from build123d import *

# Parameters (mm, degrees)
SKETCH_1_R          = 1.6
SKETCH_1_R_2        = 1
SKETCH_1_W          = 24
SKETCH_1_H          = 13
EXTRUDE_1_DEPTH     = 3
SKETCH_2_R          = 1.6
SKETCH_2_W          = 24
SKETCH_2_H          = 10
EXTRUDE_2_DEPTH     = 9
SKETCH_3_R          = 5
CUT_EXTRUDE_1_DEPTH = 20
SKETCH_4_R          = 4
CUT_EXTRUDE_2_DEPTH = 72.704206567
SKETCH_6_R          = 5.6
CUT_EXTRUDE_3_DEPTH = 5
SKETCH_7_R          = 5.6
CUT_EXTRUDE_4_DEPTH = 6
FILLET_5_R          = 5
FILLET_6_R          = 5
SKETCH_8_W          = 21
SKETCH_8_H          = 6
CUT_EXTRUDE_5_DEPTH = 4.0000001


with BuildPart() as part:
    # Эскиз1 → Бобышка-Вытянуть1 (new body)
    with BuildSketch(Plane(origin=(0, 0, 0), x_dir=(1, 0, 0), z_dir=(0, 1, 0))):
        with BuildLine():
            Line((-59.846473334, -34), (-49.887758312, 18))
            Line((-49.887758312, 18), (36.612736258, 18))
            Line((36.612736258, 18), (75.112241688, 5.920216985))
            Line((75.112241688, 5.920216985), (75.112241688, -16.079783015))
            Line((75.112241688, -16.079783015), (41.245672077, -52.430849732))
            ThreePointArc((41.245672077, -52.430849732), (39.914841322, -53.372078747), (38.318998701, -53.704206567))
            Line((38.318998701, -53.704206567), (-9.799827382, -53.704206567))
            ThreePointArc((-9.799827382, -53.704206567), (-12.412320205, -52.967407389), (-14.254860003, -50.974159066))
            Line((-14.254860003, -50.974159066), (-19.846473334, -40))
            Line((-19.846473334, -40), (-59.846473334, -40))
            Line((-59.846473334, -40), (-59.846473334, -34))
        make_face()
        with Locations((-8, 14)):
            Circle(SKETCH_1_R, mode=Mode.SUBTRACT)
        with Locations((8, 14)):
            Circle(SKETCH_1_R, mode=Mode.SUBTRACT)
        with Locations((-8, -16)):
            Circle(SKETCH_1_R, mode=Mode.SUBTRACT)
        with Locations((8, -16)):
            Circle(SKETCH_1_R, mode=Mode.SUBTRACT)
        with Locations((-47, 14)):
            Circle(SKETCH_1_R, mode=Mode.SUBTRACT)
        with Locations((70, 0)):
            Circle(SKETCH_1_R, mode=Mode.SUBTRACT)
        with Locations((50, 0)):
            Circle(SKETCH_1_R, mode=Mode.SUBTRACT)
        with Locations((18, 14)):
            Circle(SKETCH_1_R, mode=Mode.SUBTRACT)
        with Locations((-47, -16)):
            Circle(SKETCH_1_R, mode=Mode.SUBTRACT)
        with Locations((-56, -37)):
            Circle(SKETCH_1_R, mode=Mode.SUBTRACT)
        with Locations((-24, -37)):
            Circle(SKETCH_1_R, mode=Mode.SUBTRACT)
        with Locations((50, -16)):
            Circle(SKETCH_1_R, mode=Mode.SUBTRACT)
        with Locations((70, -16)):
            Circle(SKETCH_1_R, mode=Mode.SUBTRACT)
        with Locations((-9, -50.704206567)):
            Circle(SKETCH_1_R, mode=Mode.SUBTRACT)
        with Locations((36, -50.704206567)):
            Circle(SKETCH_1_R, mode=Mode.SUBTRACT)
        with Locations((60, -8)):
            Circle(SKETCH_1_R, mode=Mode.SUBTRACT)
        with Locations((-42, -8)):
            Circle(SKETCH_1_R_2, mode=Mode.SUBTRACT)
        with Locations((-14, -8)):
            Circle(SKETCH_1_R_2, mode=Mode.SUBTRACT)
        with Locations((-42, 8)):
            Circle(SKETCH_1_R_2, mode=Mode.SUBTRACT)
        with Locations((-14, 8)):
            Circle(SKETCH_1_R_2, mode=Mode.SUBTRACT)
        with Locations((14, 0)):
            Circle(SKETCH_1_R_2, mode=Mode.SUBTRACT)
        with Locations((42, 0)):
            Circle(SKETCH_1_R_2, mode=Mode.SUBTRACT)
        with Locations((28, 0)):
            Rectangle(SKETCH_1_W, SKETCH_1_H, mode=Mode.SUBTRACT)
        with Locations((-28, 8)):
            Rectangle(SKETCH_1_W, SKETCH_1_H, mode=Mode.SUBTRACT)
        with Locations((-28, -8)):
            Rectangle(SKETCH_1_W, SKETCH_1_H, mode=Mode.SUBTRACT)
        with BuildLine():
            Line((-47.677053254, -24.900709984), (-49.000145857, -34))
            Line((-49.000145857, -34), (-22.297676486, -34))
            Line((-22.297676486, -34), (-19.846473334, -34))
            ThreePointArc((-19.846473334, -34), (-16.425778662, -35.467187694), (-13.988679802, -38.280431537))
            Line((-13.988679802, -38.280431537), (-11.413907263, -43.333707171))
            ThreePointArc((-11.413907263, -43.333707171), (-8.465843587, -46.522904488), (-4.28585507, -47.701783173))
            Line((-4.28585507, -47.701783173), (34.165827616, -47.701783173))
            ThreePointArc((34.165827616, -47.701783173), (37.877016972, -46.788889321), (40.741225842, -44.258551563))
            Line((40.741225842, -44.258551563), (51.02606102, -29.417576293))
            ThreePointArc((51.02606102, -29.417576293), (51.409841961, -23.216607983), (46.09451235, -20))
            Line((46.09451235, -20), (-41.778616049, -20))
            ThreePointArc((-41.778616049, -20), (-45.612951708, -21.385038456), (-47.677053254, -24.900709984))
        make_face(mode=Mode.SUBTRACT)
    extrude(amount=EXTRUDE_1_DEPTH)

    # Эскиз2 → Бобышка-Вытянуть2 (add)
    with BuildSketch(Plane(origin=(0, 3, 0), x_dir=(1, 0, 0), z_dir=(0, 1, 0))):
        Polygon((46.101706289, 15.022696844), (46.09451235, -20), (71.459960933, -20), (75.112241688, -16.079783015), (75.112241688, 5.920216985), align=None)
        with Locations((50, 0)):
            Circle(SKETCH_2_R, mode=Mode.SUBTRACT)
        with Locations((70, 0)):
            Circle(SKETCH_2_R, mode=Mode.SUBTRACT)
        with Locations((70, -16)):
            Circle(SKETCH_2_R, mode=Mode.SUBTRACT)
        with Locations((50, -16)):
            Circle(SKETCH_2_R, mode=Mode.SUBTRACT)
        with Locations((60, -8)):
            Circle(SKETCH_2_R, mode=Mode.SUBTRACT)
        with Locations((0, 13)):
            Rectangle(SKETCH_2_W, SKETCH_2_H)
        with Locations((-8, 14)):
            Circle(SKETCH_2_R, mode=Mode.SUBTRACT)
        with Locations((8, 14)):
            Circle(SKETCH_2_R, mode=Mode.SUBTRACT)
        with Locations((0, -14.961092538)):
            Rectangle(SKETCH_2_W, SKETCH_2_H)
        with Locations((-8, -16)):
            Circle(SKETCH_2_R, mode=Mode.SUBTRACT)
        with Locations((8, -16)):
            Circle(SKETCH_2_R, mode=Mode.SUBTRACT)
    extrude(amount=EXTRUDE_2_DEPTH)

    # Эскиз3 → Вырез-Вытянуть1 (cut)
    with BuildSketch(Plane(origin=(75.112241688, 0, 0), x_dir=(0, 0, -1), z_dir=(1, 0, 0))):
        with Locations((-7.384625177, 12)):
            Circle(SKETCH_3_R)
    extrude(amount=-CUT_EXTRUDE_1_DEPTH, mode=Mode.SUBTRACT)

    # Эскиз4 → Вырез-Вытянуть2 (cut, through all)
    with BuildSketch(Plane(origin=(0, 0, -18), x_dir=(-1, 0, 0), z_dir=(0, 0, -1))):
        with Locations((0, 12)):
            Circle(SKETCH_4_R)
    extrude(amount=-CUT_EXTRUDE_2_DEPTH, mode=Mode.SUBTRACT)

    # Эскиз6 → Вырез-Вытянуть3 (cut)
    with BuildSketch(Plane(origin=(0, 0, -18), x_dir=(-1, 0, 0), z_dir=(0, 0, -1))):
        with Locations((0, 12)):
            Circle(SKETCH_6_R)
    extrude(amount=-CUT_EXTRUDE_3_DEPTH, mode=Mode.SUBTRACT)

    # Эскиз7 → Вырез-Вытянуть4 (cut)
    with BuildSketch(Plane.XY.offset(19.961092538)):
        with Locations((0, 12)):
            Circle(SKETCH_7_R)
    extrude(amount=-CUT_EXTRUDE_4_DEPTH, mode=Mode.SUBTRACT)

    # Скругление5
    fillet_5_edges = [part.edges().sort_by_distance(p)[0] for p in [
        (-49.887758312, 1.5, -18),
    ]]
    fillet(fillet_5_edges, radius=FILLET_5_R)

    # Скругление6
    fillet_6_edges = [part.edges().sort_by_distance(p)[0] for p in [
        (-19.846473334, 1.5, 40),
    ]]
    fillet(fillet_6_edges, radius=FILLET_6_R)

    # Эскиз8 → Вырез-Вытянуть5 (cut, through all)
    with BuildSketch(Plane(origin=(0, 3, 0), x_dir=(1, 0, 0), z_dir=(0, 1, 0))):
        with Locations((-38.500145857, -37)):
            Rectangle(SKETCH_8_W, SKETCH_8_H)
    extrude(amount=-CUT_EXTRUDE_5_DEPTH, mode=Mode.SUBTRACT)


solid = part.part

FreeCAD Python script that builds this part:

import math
import FreeCAD as App
import Part
import Sketcher
Q = App.Units.Quantity


def edges_at(feature, points):
    """Names of the edges that pass closest to the given points."""
    edges = feature.Shape.Edges
    near = lambda p: min(range(len(edges)), key=lambda i: edges[i].distToShape(Part.Vertex(*p))[0])
    return sorted({f"Edge{near(p) + 1}" for p in points})


def add_polygon(sketch, points):
    """Adds a closed chain of lines whose ends are joined by coincident constraints."""
    first, n = sketch.GeometryCount, len(points)
    for a, b in zip(points, points[1:] + points[:1]):
        sketch.addGeometry(Part.LineSegment(App.Vector(*a, 0), App.Vector(*b, 0)), False)
    for i in range(n):
        sketch.addConstraint(Sketcher.Constraint("Coincident", first + i, 2, first + (i + 1) % n, 1))

doc = App.newDocument("Part")
body = doc.addObject("PartDesign::Body", "Body")

sketch1 = body.newObject("Sketcher::SketchObject", "Sketch")
sketch1.AttachmentSupport = (doc.getObject("XZ_Plane"), [""])
sketch1.MapMode = "FlatFace"
sketch1.addGeometry(Part.LineSegment(App.Vector(-49.9, -18, 0), App.Vector(-59.8, 34, 0)), False)
sketch1.addGeometry(Part.LineSegment(App.Vector(-59.8, 34, 0), App.Vector(-59.8, 40, 0)), False)
sketch1.addGeometry(Part.LineSegment(App.Vector(-59.8, 40, 0), App.Vector(-19.8, 40, 0)), False)
sketch1.addGeometry(Part.LineSegment(App.Vector(-19.8, 40, 0), App.Vector(-14.3, 51, 0)), False)
sketch1.addGeometry(Part.ArcOfCircle(Part.Circle(App.Vector(-9.8, 48.7, 0), App.Vector(0, 0, 1), 5), math.radians(90), math.radians(153)), False)
sketch1.addGeometry(Part.LineSegment(App.Vector(-9.8, 53.7, 0), App.Vector(38.3, 53.7, 0)), False)
sketch1.addGeometry(Part.ArcOfCircle(Part.Circle(App.Vector(38.3, 49.7, 0), App.Vector(0, 0, 1), 4), math.radians(43), math.radians(90)), False)
sketch1.addGeometry(Part.LineSegment(App.Vector(41.2, 52.4, 0), App.Vector(75.1, 16.1, 0)), False)
sketch1.addGeometry(Part.LineSegment(App.Vector(75.1, 16.1, 0), App.Vector(75.1, -5.9, 0)), False)
sketch1.addGeometry(Part.LineSegment(App.Vector(75.1, -5.9, 0), App.Vector(36.6, -18, 0)), False)
sketch1.addGeometry(Part.LineSegment(App.Vector(36.6, -18, 0), App.Vector(-49.9, -18, 0)), False)
sketch1.addGeometry(Part.Circle(App.Vector(36, 50.7, 0), App.Vector(0, 0, 1), 1.6), False)
sketch1.addGeometry(Part.Circle(App.Vector(-9, 50.7, 0), App.Vector(0, 0, 1), 1.6), False)
sketch1.addGeometry(Part.Circle(App.Vector(-24, 37, 0), App.Vector(0, 0, 1), 1.6), False)
sketch1.addGeometry(Part.Circle(App.Vector(-56, 37, 0), App.Vector(0, 0, 1), 1.6), False)
sketch1.addGeometry(Part.ArcOfCircle(Part.Circle(App.Vector(-41.8, 26, 0), App.Vector(0, 0, 1), 6), math.radians(-169), math.radians(-90)), False)
sketch1.addGeometry(Part.LineSegment(App.Vector(-41.8, 20, 0), App.Vector(46.1, 20, 0)), False)
sketch1.addGeometry(Part.ArcOfCircle(Part.Circle(App.Vector(46.1, 26, 0), App.Vector(0, 0, 1), 6), math.radians(-90), math.radians(35)), False)
sketch1.addGeometry(Part.LineSegment(App.Vector(51, 29.4, 0), App.Vector(40.7, 44.3, 0)), False)
sketch1.addGeometry(Part.ArcOfCircle(Part.Circle(App.Vector(34.2, 39.7, 0), App.Vector(0, 0, 1), 8), math.radians(35), math.radians(90)), False)
sketch1.addGeometry(Part.LineSegment(App.Vector(34.2, 47.7, 0), App.Vector(-4.3, 47.7, 0)), False)
sketch1.addGeometry(Part.ArcOfCircle(Part.Circle(App.Vector(-4.3, 39.7, 0), App.Vector(0, 0, 1), 8), math.radians(90), math.radians(153)), False)
sketch1.addGeometry(Part.LineSegment(App.Vector(-11.4, 43.3, 0), App.Vector(-14, 38.3, 0)), False)
sketch1.addGeometry(Part.ArcOfCircle(Part.Circle(App.Vector(-21.3, 42.2, 0), App.Vector(0, 0, 1), 8.3), math.radians(-80), math.radians(-28)), False)
sketch1.addGeometry(Part.LineSegment(App.Vector(-19.8, 34, 0), App.Vector(-49, 34, 0)), False)
sketch1.addGeometry(Part.LineSegment(App.Vector(-49, 34, 0), App.Vector(-47.7, 24.9, 0)), False)
sketch1.addGeometry(Part.Circle(App.Vector(70, 16, 0), App.Vector(0, 0, 1), 1.6), False)
sketch1.addGeometry(Part.Circle(App.Vector(50, 16, 0), App.Vector(0, 0, 1), 1.6), False)
sketch1.addGeometry(Part.Circle(App.Vector(60, 8, 0), App.Vector(0, 0, 1), 1.6), False)
sketch1.addGeometry(Part.Circle(App.Vector(8, 16, 0), App.Vector(0, 0, 1), 1.6), False)
sketch1.addGeometry(Part.Circle(App.Vector(70, 0, 0), App.Vector(0, 0, 1), 1.6), False)
sketch1.addGeometry(Part.Circle(App.Vector(50, 0, 0), App.Vector(0, 0, 1), 1.6), False)
sketch1.addGeometry(Part.Circle(App.Vector(42, 0, 0), App.Vector(0, 0, 1), 1), False)
add_polygon(sketch1, [(16, 6.5), (16, -6.5), (40, -6.5), (40, 6.5)])
sketch1.addGeometry(Part.Circle(App.Vector(14, 0, 0), App.Vector(0, 0, 1), 1), False)
sketch1.addGeometry(Part.Circle(App.Vector(18, -14, 0), App.Vector(0, 0, 1), 1.6), False)
sketch1.addGeometry(Part.Circle(App.Vector(8, -14, 0), App.Vector(0, 0, 1), 1.6), False)
sketch1.addGeometry(Part.Circle(App.Vector(-8, 16, 0), App.Vector(0, 0, 1), 1.6), False)
sketch1.addGeometry(Part.Circle(App.Vector(-14, 8, 0), App.Vector(0, 0, 1), 1), False)
sketch1.addGeometry(Part.Circle(App.Vector(-47, 16, 0), App.Vector(0, 0, 1), 1.6), False)
add_polygon(sketch1, [(-40, 14.5), (-40, 1.5), (-16, 1.5), (-16, 14.5)])
sketch1.addGeometry(Part.Circle(App.Vector(-42, 8, 0), App.Vector(0, 0, 1), 1), False)
sketch1.addGeometry(Part.Circle(App.Vector(-8, -14, 0), App.Vector(0, 0, 1), 1.6), False)
sketch1.addGeometry(Part.Circle(App.Vector(-14, -8, 0), App.Vector(0, 0, 1), 1), False)
add_polygon(sketch1, [(-40, -1.5), (-40, -14.5), (-16, -14.5), (-16, -1.5)])
sketch1.addGeometry(Part.Circle(App.Vector(-42, -8, 0), App.Vector(0, 0, 1), 1), False)
sketch1.addGeometry(Part.Circle(App.Vector(-47, -14, 0), App.Vector(0, 0, 1), 1.6), False)
sketch1.addConstraint([
    Sketcher.Constraint("Coincident", 0, 2, 1, 1),
    Sketcher.Constraint("Coincident", 1, 2, 2, 1),
    Sketcher.Constraint("Coincident", 2, 2, 3, 1),
    Sketcher.Constraint("Tangent", 3, 2, 4, 2),
    Sketcher.Constraint("Tangent", 4, 1, 5, 1),
    Sketcher.Constraint("Tangent", 5, 2, 6, 2),
    Sketcher.Constraint("Tangent", 6, 1, 7, 1),
    Sketcher.Constraint("Coincident", 7, 2, 8, 1),
    Sketcher.Constraint("Coincident", 8, 2, 9, 1),
    Sketcher.Constraint("Coincident", 9, 2, 10, 1),
    Sketcher.Constraint("Coincident", 10, 2, 0, 1),
    Sketcher.Constraint("Tangent", 15, 2, 16, 1),
    Sketcher.Constraint("Tangent", 16, 2, 17, 1),
    Sketcher.Constraint("Tangent", 17, 2, 18, 1),
    Sketcher.Constraint("Tangent", 18, 2, 19, 1),
    Sketcher.Constraint("Tangent", 19, 2, 20, 1),
    Sketcher.Constraint("Tangent", 20, 2, 21, 1),
    Sketcher.Constraint("Tangent", 21, 2, 22, 1),
    Sketcher.Constraint("Coincident", 22, 2, 23, 2),
    Sketcher.Constraint("Coincident", 23, 1, 24, 1),
    Sketcher.Constraint("Coincident", 24, 2, 25, 1),
    Sketcher.Constraint("Coincident", 25, 2, 15, 1),
    Sketcher.Constraint("Vertical", 1),
    Sketcher.Constraint("Horizontal", 2),
    Sketcher.Constraint("Horizontal", 5),
    Sketcher.Constraint("Vertical", 8),
    Sketcher.Constraint("Horizontal", 10),
    Sketcher.Constraint("Horizontal", 16),
    Sketcher.Constraint("Horizontal", 20),
    Sketcher.Constraint("Horizontal", 24),
    Sketcher.Constraint("Vertical", 33),
    Sketcher.Constraint("Horizontal", 34),
    Sketcher.Constraint("Vertical", 35),
    Sketcher.Constraint("Horizontal", 36),
    Sketcher.Constraint("Vertical", 43),
    Sketcher.Constraint("Horizontal", 44),
    Sketcher.Constraint("Vertical", 45),
    Sketcher.Constraint("Horizontal", 46),
    Sketcher.Constraint("Vertical", 50),
    Sketcher.Constraint("Horizontal", 51),
    Sketcher.Constraint("Vertical", 52),
    Sketcher.Constraint("Horizontal", 53),
    Sketcher.Constraint("Equal", 11, 12),
    Sketcher.Constraint("Equal", 12, 13),
    Sketcher.Constraint("Equal", 13, 14),
    Sketcher.Constraint("Equal", 15, 17),
    Sketcher.Constraint("Equal", 19, 21),
    Sketcher.Constraint("Equal", 14, 26),
    Sketcher.Constraint("Equal", 26, 27),
    Sketcher.Constraint("Equal", 27, 28),
    Sketcher.Constraint("Equal", 28, 29),
    Sketcher.Constraint("Equal", 29, 30),
    Sketcher.Constraint("Equal", 30, 31),
    Sketcher.Constraint("Equal", 32, 37),
    Sketcher.Constraint("Equal", 31, 38),
    Sketcher.Constraint("Equal", 38, 39),
    Sketcher.Constraint("Equal", 39, 40),
    Sketcher.Constraint("Equal", 37, 41),
    Sketcher.Constraint("Equal", 40, 42),
    Sketcher.Constraint("Equal", 41, 47),
    Sketcher.Constraint("Equal", 42, 48),
    Sketcher.Constraint("Equal", 47, 49),
    Sketcher.Constraint("Equal", 49, 54),
    Sketcher.Constraint("Equal", 48, 55),
    Sketcher.Constraint("Symmetric", 29, 3, 40, 3, -2),
    Sketcher.Constraint("Symmetric", 39, 3, 48, 3, -2),
    Sketcher.Constraint("Symmetric", 41, 3, 49, 3, -1),
    Sketcher.Constraint("Symmetric", 47, 3, 54, 3, -1),
    Sketcher.Constraint("Symmetric", 46, 2, 50, 2, -1),
    Sketcher.Constraint("Symmetric", 44, 2, 52, 2, -1),
    Sketcher.Constraint("PointOnObject", 30, 3, -1),
    Sketcher.Constraint("PointOnObject", 31, 3, -1),
    Sketcher.Constraint("PointOnObject", 32, 3, -1),
    Sketcher.Constraint("PointOnObject", 37, 3, -1),
    Sketcher.Constraint("Parallel", 3, 22),
    Sketcher.Constraint("Horizontal", 11, 3, 12, 3),
    Sketcher.Constraint("Horizontal", 13, 3, 14, 3),
    Sketcher.Constraint("Horizontal", 26, 3, 27, 3),
    Sketcher.Constraint("Horizontal", 27, 3, 29, 3),
    Sketcher.Constraint("Horizontal", 38, 3, 39, 3),
    Sketcher.Constraint("Horizontal", 28, 3, 41, 3),
    Sketcher.Constraint("Horizontal", 40, 3, 42, 3),
    Sketcher.Constraint("Horizontal", 41, 3, 47, 3),
    Sketcher.Constraint("Horizontal", 48, 3, 55, 3),
    Sketcher.Constraint("Horizontal", 0, 2, 23, 1),
    Sketcher.Constraint("Vertical", 26, 3, 30, 3),
    Sketcher.Constraint("Vertical", 27, 3, 31, 3),
    Sketcher.Constraint("Vertical", 29, 3, 39, 3),
    Sketcher.Constraint("Vertical", 42, 3, 55, 3),
    Sketcher.Constraint("Vertical", 2, 2, 23, 1),
    Sketcher.Constraint("Equal", 36, 44),
    Sketcher.Constraint("Equal", 35, 43),
    Sketcher.Constraint("Diameter", 32, Q("2 mm")),
    Sketcher.Constraint("Radius", 4, Q("5 mm")),
    Sketcher.Constraint("Radius", 6, Q("4 mm")),
    Sketcher.Constraint("Radius", 15, Q("6 mm")),
    Sketcher.Constraint("Radius", 19, Q("8 mm")),
    Sketcher.Constraint("Diameter", 11, Q("3.2 mm")),
    Sketcher.Constraint("DistanceX", 2, 1, 2, 2, Q("40 mm")),
    Sketcher.Constraint("DistanceX", 34, 1, 34, 2, Q("24 mm")),
    Sketcher.Constraint("DistanceY", 1, 1, 1, 2, Q("6 mm")),
    Sketcher.Constraint("DistanceY", 8, 2, 8, 1, Q("22 mm")),
    Sketcher.Constraint("DistanceY", 33, 2, 33, 1, Q("13 mm")),
    Sketcher.Constraint("Angle", 3, Q("63 deg")),
    Sketcher.Constraint("DistanceX", -1, 1, 11, 3, Q("36 mm")),
    Sketcher.Constraint("DistanceX", 12, 3, -1, 1, Q("9 mm")),
    Sketcher.Constraint("DistanceX", 13, 3, -1, 1, Q("24 mm")),
    Sketcher.Constraint("DistanceY", -1, 1, 13, 3, Q("37 mm")),
    Sketcher.Constraint("DistanceX", 14, 3, -1, 1, Q("56 mm")),
    Sketcher.Constraint("DistanceY", -1, 1, 15, 3, Q("26 mm")),
    Sketcher.Constraint("DistanceX", -1, 1, 26, 3, Q("70 mm")),
    Sketcher.Constraint("DistanceY", -1, 1, 26, 3, Q("16 mm")),
    Sketcher.Constraint("DistanceX", -1, 1, 27, 3, Q("50 mm")),
    Sketcher.Constraint("DistanceX", -1, 1, 28, 3, Q("60 mm")),
    Sketcher.Constraint("DistanceY", -1, 1, 28, 3, Q("8 mm")),
    Sketcher.Constraint("DistanceX", -1, 1, 29, 3, Q("8 mm")),
    Sketcher.Constraint("DistanceX", -1, 1, 32, 3, Q("42 mm")),
    Sketcher.Constraint("DistanceX", -1, 1, 37, 3, Q("14 mm")),
    Sketcher.Constraint("DistanceX", -1, 1, 38, 3, Q("18 mm")),
    Sketcher.Constraint("DistanceY", 38, 3, -1, 1, Q("14 mm")),
    Sketcher.Constraint("DistanceX", 41, 3, -1, 1, Q("14 mm")),
    Sketcher.Constraint("DistanceX", 42, 3, -1, 1, Q("47 mm")),
    Sketcher.Constraint("DistanceX", 47, 3, -1, 1, Q("42 mm")),
    Sketcher.Constraint("DistanceY", -1, 1, 0, 2, Q("34 mm")),
    Sketcher.Constraint("DistanceY", 9, 2, -1, 1, Q("18 mm")),
    Sketcher.Constraint("DistanceX", -1, 1, 33, 2, Q("16 mm")),
    Sketcher.Constraint("DistanceX", 43, 2, -1, 1, Q("40 mm")),
    Sketcher.Constraint("DistanceY", 33, 2, -1, 1, Q("6.5 mm")),
    Sketcher.Constraint("DistanceY", -1, 1, 43, 2, Q("1.5 mm")),
    Sketcher.Constraint("Angle", 9, Q("-162.579988 deg")),
    Sketcher.Constraint("DistanceX", -1, 1, 6, 3, Q("38.318999 mm")),
    Sketcher.Constraint("Radius", 23, Q("8.309957 mm")),
    Sketcher.Constraint("DistanceX", 16, 1, 16, 2, Q("87.873128 mm")),
    Sketcher.Constraint("Distance", 0, Q("52.945028 mm")),
    Sketcher.Constraint("Distance", 9, Q("40.350131 mm")),
    Sketcher.Constraint("Distance", 25, Q("9.19498 mm")),
    Sketcher.Constraint("DistanceX", 5, 1, 5, 2, Q("48.118826 mm")),
    Sketcher.Constraint("DistanceX", 10, 2, 10, 1, Q("86.500495 mm")),
    Sketcher.Constraint("DistanceX", 20, 2, 20, 1, Q("38.451683 mm")),
    Sketcher.Constraint("DistanceX", 24, 2, 24, 1, Q("29.153673 mm")),
    Sketcher.Constraint("DistanceY", -1, 1, 3, 2, Q("50.974159 mm")),
    Sketcher.Constraint("DistanceX", -1, 1, 17, 2, Q("51.026061 mm")),
    Sketcher.Constraint("DistanceY", -1, 1, 18, 2, Q("44.258552 mm")),
    Sketcher.Constraint("DistanceX", 22, 2, -1, 1, Q("13.98868 mm")),
    Sketcher.Constraint("DistanceY", -1, 1, 22, 2, Q("38.280432 mm")),
    Sketcher.Constraint("DistanceY", -1, 1, 11, 3, Q("50.704207 mm")),
])
pad1 = body.newObject("PartDesign::Pad", "Pad")
pad1.Profile = sketch1
pad1.Length = 3
pad1.Reversed = True

sketch2 = body.newObject("Sketcher::SketchObject", "Sketch001")
sketch2.AttachmentSupport = (doc.getObject("XZ_Plane"), [""])
sketch2.MapMode = "FlatFace"
sketch2.AttachmentOffset = App.Placement(App.Vector(0, 0, -3), App.Rotation())
add_polygon(sketch2, [(46.1, -15), (46.1, 20), (71.5, 20), (75.1, 16.1), (75.1, -5.9)])
sketch2.addGeometry(Part.Circle(App.Vector(50, 16, 0), App.Vector(0, 0, 1), 1.6), False)
sketch2.addGeometry(Part.Circle(App.Vector(70, 16, 0), App.Vector(0, 0, 1), 1.6), False)
sketch2.addGeometry(Part.Circle(App.Vector(50, 0, 0), App.Vector(0, 0, 1), 1.6), False)
sketch2.addGeometry(Part.Circle(App.Vector(60, 8, 0), App.Vector(0, 0, 1), 1.6), False)
sketch2.addGeometry(Part.Circle(App.Vector(70, 0, 0), App.Vector(0, 0, 1), 1.6), False)
add_polygon(sketch2, [(-12, -18), (-12, -8), (12, -8), (12, -18)])
sketch2.addGeometry(Part.Circle(App.Vector(-8, -14, 0), App.Vector(0, 0, 1), 1.6), False)
sketch2.addGeometry(Part.Circle(App.Vector(8, -14, 0), App.Vector(0, 0, 1), 1.6), False)
add_polygon(sketch2, [(-12, 10), (-12, 20), (12, 20), (12, 10)])
sketch2.addGeometry(Part.Circle(App.Vector(-8, 16, 0), App.Vector(0, 0, 1), 1.6), False)
sketch2.addGeometry(Part.Circle(App.Vector(8, 16, 0), App.Vector(0, 0, 1), 1.6), False)
sketch2.addConstraint([
    Sketcher.Constraint("Horizontal", 1),
    Sketcher.Constraint("Vertical", 3),
    Sketcher.Constraint("Vertical", 10),
    Sketcher.Constraint("Horizontal", 11),
    Sketcher.Constraint("Vertical", 12),
    Sketcher.Constraint("Horizontal", 13),
    Sketcher.Constraint("Vertical", 16),
    Sketcher.Constraint("Horizontal", 17),
    Sketcher.Constraint("Vertical", 18),
    Sketcher.Constraint("Horizontal", 19),
    Sketcher.Constraint("Equal", 5, 6),
    Sketcher.Constraint("Equal", 6, 7),
    Sketcher.Constraint("Equal", 7, 8),
    Sketcher.Constraint("Equal", 8, 9),
    Sketcher.Constraint("Equal", 9, 14),
    Sketcher.Constraint("Equal", 14, 15),
    Sketcher.Constraint("Equal", 15, 20),
    Sketcher.Constraint("Equal", 20, 21),
    Sketcher.Constraint("Symmetric", 14, 3, 15, 3, -2),
    Sketcher.Constraint("Symmetric", 20, 3, 21, 3, -2),
    Sketcher.Constraint("PointOnObject", 7, 3, -1),
    Sketcher.Constraint("PointOnObject", 9, 3, -1),
    Sketcher.Constraint("Horizontal", 5, 3, 6, 3),
    Sketcher.Constraint("Horizontal", 6, 3, 20, 3),
    Sketcher.Constraint("Vertical", 5, 3, 7, 3),
    Sketcher.Constraint("Vertical", 6, 3, 9, 3),
    Sketcher.Constraint("Vertical", 14, 3, 20, 3),
    Sketcher.Constraint("Vertical", 13, 2, 16, 2),
    Sketcher.Constraint("Vertical", 12, 2, 17, 2),
    Sketcher.Constraint("Equal", 12, 16),
    Sketcher.Constraint("Diameter", 5, Q("3.2 mm")),
    Sketcher.Constraint("DistanceX", 11, 1, 11, 2, Q("24 mm")),
    Sketcher.Constraint("DistanceY", 3, 2, 3, 1, Q("22 mm")),
    Sketcher.Constraint("DistanceY", 10, 1, 10, 2, Q("10 mm")),
    Sketcher.Constraint("DistanceX", -1, 1, 5, 3, Q("50 mm")),
    Sketcher.Constraint("DistanceY", -1, 1, 5, 3, Q("16 mm")),
    Sketcher.Constraint("DistanceX", -1, 1, 6, 3, Q("70 mm")),
    Sketcher.Constraint("DistanceX", -1, 1, 8, 3, Q("60 mm")),
    Sketcher.Constraint("DistanceY", -1, 1, 8, 3, Q("8 mm")),
    Sketcher.Constraint("DistanceX", 14, 3, -1, 1, Q("8 mm")),
    Sketcher.Constraint("DistanceY", 14, 3, -1, 1, Q("14 mm")),
    Sketcher.Constraint("DistanceY", -1, 1, 0, 2, Q("20 mm")),
    Sketcher.Constraint("DistanceX", 10, 2, -1, 1, Q("12 mm")),
    Sketcher.Constraint("DistanceY", 10, 2, -1, 1, Q("8 mm")),
    Sketcher.Constraint("Angle", 4, Q("-162.579988 deg")),
    Sketcher.Constraint("DistanceX", 1, 1, 1, 2, Q("25.365449 mm")),
    Sketcher.Constraint("DistanceX", -1, 1, 1, 2, Q("71.459961 mm")),
    Sketcher.Constraint("DistanceX", -1, 1, 2, 2, Q("75.112242 mm")),
    Sketcher.Constraint("DistanceY", 4, 2, 3, 2, Q("9.10248 mm")),
    Sketcher.Constraint("Distance", 0, Q("35.022698 mm")),
    Sketcher.Constraint("DistanceY", -1, 1, 16, 2, Q("19.961093 mm")),
])
pad2 = body.newObject("PartDesign::Pad", "Pad001")
pad2.Profile = sketch2
pad2.Length = 9
pad2.Reversed = True

sketch3 = body.newObject("Sketcher::SketchObject", "Sketch002")
sketch3.AttachmentSupport = (doc.getObject("YZ_Plane"), [""])
sketch3.MapMode = "FlatFace"
sketch3.AttachmentOffset = App.Placement(App.Vector(0, 0, 75.112242), App.Rotation())
sketch3.addGeometry(Part.Circle(App.Vector(12, 7, 0), App.Vector(0, 0, 1), 5), False)
sketch3.addConstraint([
    Sketcher.Constraint("Diameter", 0, Q("10 mm")),
    Sketcher.Constraint("DistanceX", -1, 1, 0, 3, Q("12 mm")),
    Sketcher.Constraint("DistanceY", -1, 1, 0, 3, Q("7.384625 mm")),
])
pocket1 = body.newObject("PartDesign::Pocket", "Pocket")
pocket1.Profile = sketch3
pocket1.Length = 20

sketch4 = body.newObject("Sketcher::SketchObject", "Sketch003")
sketch4.AttachmentSupport = (doc.getObject("XY_Plane"), [""])
sketch4.MapMode = "FlatFace"
sketch4.AttachmentOffset = App.Placement(App.Vector(0, 0, -18), App.Rotation())
sketch4.addGeometry(Part.Circle(App.Vector(0, 12, 0), App.Vector(0, 0, 1), 4), False)
sketch4.addConstraint([
    Sketcher.Constraint("PointOnObject", 0, 3, -2),
    Sketcher.Constraint("Diameter", 0, Q("8 mm")),
    Sketcher.Constraint("DistanceY", -1, 1, 0, 3, Q("12 mm")),
])
pocket2 = body.newObject("PartDesign::Pocket", "Pocket001")
pocket2.Profile = sketch4
pocket2.Type = "ThroughAll"
pocket2.Reversed = True

sketch5 = body.newObject("Sketcher::SketchObject", "Sketch004")
sketch5.AttachmentSupport = (doc.getObject("XY_Plane"), [""])
sketch5.MapMode = "FlatFace"
sketch5.AttachmentOffset = App.Placement(App.Vector(0, 0, -18), App.Rotation())
sketch5.addGeometry(Part.Circle(App.Vector(0, 12, 0), App.Vector(0, 0, 1), 6), False)
sketch5.addConstraint([
    Sketcher.Constraint("PointOnObject", 0, 3, -2),
    Sketcher.Constraint("Diameter", 0, Q("11.2 mm")),
    Sketcher.Constraint("DistanceY", -1, 1, 0, 3, Q("12 mm")),
])
pocket3 = body.newObject("PartDesign::Pocket", "Pocket002")
pocket3.Profile = sketch5
pocket3.Length = 5
pocket3.Reversed = True

sketch6 = body.newObject("Sketcher::SketchObject", "Sketch005")
sketch6.AttachmentSupport = (doc.getObject("XY_Plane"), [""])
sketch6.MapMode = "FlatFace"
sketch6.AttachmentOffset = App.Placement(App.Vector(0, 0, 19.961093), App.Rotation())
sketch6.addGeometry(Part.Circle(App.Vector(0, 12, 0), App.Vector(0, 0, 1), 6), False)
sketch6.addConstraint([
    Sketcher.Constraint("PointOnObject", 0, 3, -2),
    Sketcher.Constraint("Diameter", 0, Q("11.2 mm")),
    Sketcher.Constraint("DistanceY", -1, 1, 0, 3, Q("12 mm")),
])
pocket4 = body.newObject("PartDesign::Pocket", "Pocket003")
pocket4.Profile = sketch6
pocket4.Length = 6
doc.recompute()

fillet = body.newObject("PartDesign::Fillet", "Fillet")
fillet.Base = (pocket4, edges_at(pocket4, [(-49.888, 1.5, -18)]))
fillet.Radius = 5
doc.recompute()

fillet2 = body.newObject("PartDesign::Fillet", "Fillet001")
fillet2.Base = (fillet, edges_at(fillet, [(-19.846, 1.5, 40)]))
fillet2.Radius = 5

sketch7 = body.newObject("Sketcher::SketchObject", "Sketch006")
sketch7.AttachmentSupport = (doc.getObject("XZ_Plane"), [""])
sketch7.MapMode = "FlatFace"
sketch7.AttachmentOffset = App.Placement(App.Vector(0, 0, -3), App.Rotation())
add_polygon(sketch7, [(-49, 34), (-49, 40), (-28, 40), (-28, 34)])
sketch7.addConstraint([
    Sketcher.Constraint("Vertical", 0),
    Sketcher.Constraint("Horizontal", 1),
    Sketcher.Constraint("Vertical", 2),
    Sketcher.Constraint("Horizontal", 3),
    Sketcher.Constraint("DistanceX", 1, 1, 1, 2, Q("21 mm")),
    Sketcher.Constraint("DistanceY", 0, 1, 0, 2, Q("6 mm")),
    Sketcher.Constraint("DistanceY", -1, 1, 0, 2, Q("40 mm")),
    Sketcher.Constraint("DistanceX", 0, 2, -1, 1, Q("49.000146 mm")),
])
pocket5 = body.newObject("PartDesign::Pocket", "Pocket004")
pocket5.Profile = sketch7
pocket5.Type = "ThroughAll"
pocket5.Reversed = True

doc.recompute()
